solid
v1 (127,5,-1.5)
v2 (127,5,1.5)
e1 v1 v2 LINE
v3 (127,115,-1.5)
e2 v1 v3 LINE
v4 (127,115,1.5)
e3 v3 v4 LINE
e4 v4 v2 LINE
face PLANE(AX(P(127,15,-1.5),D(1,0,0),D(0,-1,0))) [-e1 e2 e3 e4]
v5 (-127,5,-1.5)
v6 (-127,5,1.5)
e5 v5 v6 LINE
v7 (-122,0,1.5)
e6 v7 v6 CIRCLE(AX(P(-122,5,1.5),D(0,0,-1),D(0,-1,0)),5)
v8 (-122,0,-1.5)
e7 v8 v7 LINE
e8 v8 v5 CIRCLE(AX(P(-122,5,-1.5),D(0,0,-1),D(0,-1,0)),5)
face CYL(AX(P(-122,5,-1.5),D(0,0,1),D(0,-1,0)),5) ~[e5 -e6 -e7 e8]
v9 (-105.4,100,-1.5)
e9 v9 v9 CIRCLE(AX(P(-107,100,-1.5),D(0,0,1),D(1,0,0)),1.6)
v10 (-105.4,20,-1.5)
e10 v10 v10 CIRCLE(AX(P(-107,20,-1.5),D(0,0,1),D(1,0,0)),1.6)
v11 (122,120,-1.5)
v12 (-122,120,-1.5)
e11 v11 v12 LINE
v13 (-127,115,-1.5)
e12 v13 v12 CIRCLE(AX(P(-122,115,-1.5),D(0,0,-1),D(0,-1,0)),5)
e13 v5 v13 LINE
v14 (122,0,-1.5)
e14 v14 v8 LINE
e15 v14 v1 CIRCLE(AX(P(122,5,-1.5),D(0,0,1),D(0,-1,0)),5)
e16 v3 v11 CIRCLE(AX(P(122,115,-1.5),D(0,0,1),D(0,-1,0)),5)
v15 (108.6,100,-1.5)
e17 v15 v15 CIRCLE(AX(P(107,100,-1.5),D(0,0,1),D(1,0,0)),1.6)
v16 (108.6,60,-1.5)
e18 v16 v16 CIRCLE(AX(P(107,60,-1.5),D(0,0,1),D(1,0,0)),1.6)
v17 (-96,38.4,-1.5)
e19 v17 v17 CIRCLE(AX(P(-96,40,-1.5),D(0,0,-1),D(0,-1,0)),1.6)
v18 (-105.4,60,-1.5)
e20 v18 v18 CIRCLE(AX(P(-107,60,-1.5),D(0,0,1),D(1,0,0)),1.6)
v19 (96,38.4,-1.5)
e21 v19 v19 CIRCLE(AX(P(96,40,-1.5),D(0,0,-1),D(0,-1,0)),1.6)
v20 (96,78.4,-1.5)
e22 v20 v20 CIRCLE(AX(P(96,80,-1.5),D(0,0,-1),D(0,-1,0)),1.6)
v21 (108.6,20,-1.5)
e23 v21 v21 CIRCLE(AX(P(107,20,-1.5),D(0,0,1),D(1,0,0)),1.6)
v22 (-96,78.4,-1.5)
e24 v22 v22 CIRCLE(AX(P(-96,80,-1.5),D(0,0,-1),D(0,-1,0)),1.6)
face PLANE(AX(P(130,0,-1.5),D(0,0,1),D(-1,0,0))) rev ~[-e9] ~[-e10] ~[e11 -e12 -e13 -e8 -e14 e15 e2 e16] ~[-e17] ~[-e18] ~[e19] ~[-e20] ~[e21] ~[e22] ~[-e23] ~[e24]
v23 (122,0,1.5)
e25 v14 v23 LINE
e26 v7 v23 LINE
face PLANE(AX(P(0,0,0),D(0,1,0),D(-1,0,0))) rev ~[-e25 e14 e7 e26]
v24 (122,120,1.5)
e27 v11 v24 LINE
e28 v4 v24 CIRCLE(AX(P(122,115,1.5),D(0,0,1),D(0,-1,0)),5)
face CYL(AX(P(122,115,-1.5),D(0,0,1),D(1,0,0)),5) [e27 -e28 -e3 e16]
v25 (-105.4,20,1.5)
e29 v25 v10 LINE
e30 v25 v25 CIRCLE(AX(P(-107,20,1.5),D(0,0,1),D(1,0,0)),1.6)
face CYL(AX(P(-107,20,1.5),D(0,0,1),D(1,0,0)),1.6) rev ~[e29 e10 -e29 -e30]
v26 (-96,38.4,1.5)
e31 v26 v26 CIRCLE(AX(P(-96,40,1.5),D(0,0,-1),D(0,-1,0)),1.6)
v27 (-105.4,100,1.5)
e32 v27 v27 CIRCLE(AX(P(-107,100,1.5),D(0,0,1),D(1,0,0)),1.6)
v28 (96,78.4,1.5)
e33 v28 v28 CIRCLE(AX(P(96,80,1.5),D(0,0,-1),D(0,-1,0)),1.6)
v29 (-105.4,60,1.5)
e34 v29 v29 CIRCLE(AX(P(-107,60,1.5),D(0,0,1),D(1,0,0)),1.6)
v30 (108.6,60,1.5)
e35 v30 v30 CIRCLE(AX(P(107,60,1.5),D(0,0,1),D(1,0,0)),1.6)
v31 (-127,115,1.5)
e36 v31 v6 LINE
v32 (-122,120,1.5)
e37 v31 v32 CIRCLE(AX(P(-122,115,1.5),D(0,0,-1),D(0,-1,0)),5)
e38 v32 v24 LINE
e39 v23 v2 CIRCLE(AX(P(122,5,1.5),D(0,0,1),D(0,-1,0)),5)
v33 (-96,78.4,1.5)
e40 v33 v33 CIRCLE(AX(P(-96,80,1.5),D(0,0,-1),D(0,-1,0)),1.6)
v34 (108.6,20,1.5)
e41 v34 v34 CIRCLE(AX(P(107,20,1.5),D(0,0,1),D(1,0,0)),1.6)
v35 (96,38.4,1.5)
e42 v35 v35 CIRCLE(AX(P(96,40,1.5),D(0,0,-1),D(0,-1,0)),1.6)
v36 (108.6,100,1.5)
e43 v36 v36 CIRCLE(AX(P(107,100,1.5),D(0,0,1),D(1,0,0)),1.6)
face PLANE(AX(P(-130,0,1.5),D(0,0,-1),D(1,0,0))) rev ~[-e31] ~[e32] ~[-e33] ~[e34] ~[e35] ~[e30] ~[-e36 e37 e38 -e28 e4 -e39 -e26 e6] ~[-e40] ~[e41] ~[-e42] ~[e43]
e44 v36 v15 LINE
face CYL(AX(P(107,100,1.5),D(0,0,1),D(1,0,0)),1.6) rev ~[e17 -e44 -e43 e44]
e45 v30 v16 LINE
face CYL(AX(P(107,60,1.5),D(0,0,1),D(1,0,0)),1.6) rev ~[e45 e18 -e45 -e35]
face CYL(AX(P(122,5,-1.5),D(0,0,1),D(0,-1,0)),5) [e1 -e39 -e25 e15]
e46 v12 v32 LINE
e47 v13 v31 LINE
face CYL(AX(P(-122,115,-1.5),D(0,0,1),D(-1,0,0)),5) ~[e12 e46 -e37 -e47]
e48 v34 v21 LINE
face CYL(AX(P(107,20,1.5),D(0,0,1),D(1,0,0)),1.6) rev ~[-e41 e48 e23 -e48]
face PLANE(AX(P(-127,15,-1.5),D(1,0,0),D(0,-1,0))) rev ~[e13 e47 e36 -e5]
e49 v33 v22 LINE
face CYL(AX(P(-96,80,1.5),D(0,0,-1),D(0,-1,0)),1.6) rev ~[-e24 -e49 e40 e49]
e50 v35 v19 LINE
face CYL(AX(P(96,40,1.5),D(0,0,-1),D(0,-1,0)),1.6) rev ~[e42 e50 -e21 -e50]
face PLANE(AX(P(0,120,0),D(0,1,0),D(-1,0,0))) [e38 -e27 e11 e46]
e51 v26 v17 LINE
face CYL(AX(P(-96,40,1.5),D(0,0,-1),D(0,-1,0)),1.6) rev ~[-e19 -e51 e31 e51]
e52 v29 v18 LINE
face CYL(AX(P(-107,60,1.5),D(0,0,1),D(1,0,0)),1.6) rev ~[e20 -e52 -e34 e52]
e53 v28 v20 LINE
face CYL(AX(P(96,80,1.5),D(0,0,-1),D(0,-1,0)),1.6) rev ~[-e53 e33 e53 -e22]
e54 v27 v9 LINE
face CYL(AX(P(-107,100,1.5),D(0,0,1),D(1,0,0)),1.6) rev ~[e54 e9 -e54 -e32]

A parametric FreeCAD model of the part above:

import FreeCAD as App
import Part
import Sketcher

V = App.Vector


def edges_at(feature, points):
    """Names of the edges that pass closest to the given points."""
    edges = feature.Shape.Edges
    near = lambda p: min(range(len(edges)), key=lambda i: edges[i].distToShape(Part.Vertex(*p))[0])
    return sorted({f"Edge{near(p) + 1}" for p in points})


def add_polygon(sketch, points):
    """Adds a closed chain of lines whose ends are joined by coincident constraints."""
    first, n = sketch.GeometryCount, len(points)
    for a, b in zip(points, points[1:] + points[:1]):
        sketch.addGeometry(Part.LineSegment(App.Vector(*a, 0), App.Vector(*b, 0)), False)
    for i in range(n):
        sketch.addConstraint(Sketcher.Constraint("Coincident", first + i, 2, first + (i + 1) % n, 1))

doc = App.newDocument("Part")
body = doc.addObject("PartDesign::Body", "Body")

# Sketch on XZ plane
sketch1 = doc.addObject("Sketcher::SketchObject", "Sketch")
body.addObject(sketch1)
sketch1.AttachmentSupport = (doc.XZ_Plane, [""])
sketch1.MapMode = "FlatFace"
add_polygon(sketch1, [(-130, -1.5), (-130, 1.5), (130, 1.5), (130, -1.5)])  # lines 0-3
sketch1.addConstraint(Sketcher.Constraint("Vertical", 0))
sketch1.addConstraint(Sketcher.Constraint("Horizontal", 1))
sketch1.addConstraint(Sketcher.Constraint("Vertical", 2))
sketch1.addConstraint(Sketcher.Constraint("Horizontal", 3))
sketch1.addConstraint(Sketcher.Constraint("Symmetric", 0, 2, 2, 2, -1, 1))
sketch1.addConstraint(Sketcher.Constraint("DistanceX", 1, 1, 1, 2, 260.0))
sketch1.addConstraint(Sketcher.Constraint("DistanceY", 0, 1, 0, 2, 3.0))
pad1 = doc.addObject("PartDesign::Pad", "Pad")
body.addObject(pad1)
pad1.Profile = sketch1
pad1.Length = 120
pad1.Reversed = True

# Sketch on XY plane
sketch2 = doc.addObject("Sketcher::SketchObject", "Sketch001")
body.addObject(sketch2)
sketch2.AttachmentSupport = (doc.XY_Plane, [""])
sketch2.MapMode = "FlatFace"
sketch2.AttachmentOffset = App.Placement(V(0, 0, -1.5), App.Rotation())
add_polygon(sketch2, [(130, 0), (127, 0), (127, 120), (130, 120)])  # lines 0-3
add_polygon(sketch2, [(-127, 0), (-130, 0), (-130, 120), (-127, 120)])  # lines 4-7
sketch2.addConstraint(Sketcher.Constraint("Horizontal", 0))
sketch2.addConstraint(Sketcher.Constraint("Vertical", 1))
sketch2.addConstraint(Sketcher.Constraint("Horizontal", 2))
sketch2.addConstraint(Sketcher.Constraint("Vertical", 3))
sketch2.addConstraint(Sketcher.Constraint("Horizontal", 4))
sketch2.addConstraint(Sketcher.Constraint("Vertical", 5))
sketch2.addConstraint(Sketcher.Constraint("Horizontal", 6))
sketch2.addConstraint(Sketcher.Constraint("Vertical", 7))
sketch2.addConstraint(Sketcher.Constraint("Symmetric", 3, 2, 4, 2, -1, 1))
sketch2.addConstraint(Sketcher.Constraint("Symmetric", 1, 2, 6, 2, -2))
sketch2.addConstraint(Sketcher.Constraint("PointOnObject", 0, 2, -1))
sketch2.addConstraint(Sketcher.Constraint("DistanceX", 0, 2, 0, 1, 3.0))
sketch2.addConstraint(Sketcher.Constraint("DistanceY", 1, 1, 1, 2, 120.0))
sketch2.addConstraint(Sketcher.Constraint("DistanceX", -1, 1, 0, 2, 127.0))
pocket1 = doc.addObject("PartDesign::Pocket", "Pocket")
body.addObject(pocket1)
pocket1.Profile = sketch2
pocket1.Type = "ThroughAll"
pocket1.Reversed = True

# Sketch on XY plane
sketch3 = doc.addObject("Sketcher::SketchObject", "Sketch002")
body.addObject(sketch3)
sketch3.AttachmentSupport = (doc.XY_Plane, [""])
sketch3.MapMode = "FlatFace"
sketch3.AttachmentOffset = App.Placement(V(0, 0, 1.5), App.Rotation())
sketch3.addGeometry(Part.Circle(V(-107, 100, 0), V(0, 0, 1), 1.6), False)
sketch3.addGeometry(Part.Circle(V(-107, 20, 0), V(0, 0, 1), 1.6), False)
sketch3.addGeometry(Part.Circle(V(107, 100, 0), V(0, 0, 1), 1.6), False)
sketch3.addGeometry(Part.Circle(V(107, 20, 0), V(0, 0, 1), 1.6), False)
sketch3.addGeometry(Part.Circle(V(-107, 60, 0), V(0, 0, 1), 1.6), False)
sketch3.addGeometry(Part.Circle(V(107, 60, 0), V(0, 0, 1), 1.6), False)
sketch3.addConstraint(Sketcher.Constraint("Equal", 0, 1))
sketch3.addConstraint(Sketcher.Constraint("Equal", 1, 2))
sketch3.addConstraint(Sketcher.Constraint("Equal", 2, 3))
sketch3.addConstraint(Sketcher.Constraint("Equal", 3, 4))
sketch3.addConstraint(Sketcher.Constraint("Equal", 4, 5))
sketch3.addConstraint(Sketcher.Constraint("Symmetric", 0, 3, 2, 3, -2))
sketch3.addConstraint(Sketcher.Constraint("Symmetric", 1, 3, 3, 3, -2))
sketch3.addConstraint(Sketcher.Constraint("Symmetric", 4, 3, 5, 3, -2))
sketch3.addConstraint(Sketcher.Constraint("Vertical", 0, 3, 1, 3))
sketch3.addConstraint(Sketcher.Constraint("Vertical", 1, 3, 4, 3))
sketch3.addConstraint(Sketcher.Constraint("Diameter", 0, 3.2))
sketch3.addConstraint(Sketcher.Constraint("DistanceY", -1, 1, 1, 3, 20.0))
sketch3.addConstraint(Sketcher.Constraint("DistanceY", 4, 3, 0, 3, 40.0))
sketch3.addConstraint(Sketcher.Constraint("DistanceY", 1, 3, 4, 3, 40.0))
sketch3.addConstraint(Sketcher.Constraint("DistanceX", 0, 3, -1, 1, 107.0))
pocket2 = doc.addObject("PartDesign::Pocket", "Pocket001")
body.addObject(pocket2)
pocket2.Profile = sketch3
pocket2.Type = "ThroughAll"
doc.recompute()

fillet = doc.addObject("PartDesign::Fillet", "Fillet")
body.addObject(fillet)
fillet.Base = (pocket2, edges_at(pocket2, [
    (-127, 120, 0),
    (-127, 0, 0),
    (127, 120, 0),
    (127, 0, 0),
]))
fillet.Radius = 5

# Sketch on XY plane
sketch4 = doc.addObject("Sketcher::SketchObject", "Sketch003")
body.addObject(sketch4)
sketch4.AttachmentSupport = (doc.XY_Plane, [""])
sketch4.MapMode = "FlatFace"
sketch4.AttachmentOffset = App.Placement(V(0, 0, 1.5), App.Rotation())
sketch4.addGeometry(Part.Circle(V(-96, 80, 0), V(0, 0, 1), 1.6), False)
sketch4.addGeometry(Part.Circle(V(-96, 40, 0), V(0, 0, 1), 1.6), False)
sketch4.addGeometry(Part.Circle(V(96, 40, 0), V(0, 0, 1), 1.6), False)
sketch4.addGeometry(Part.Circle(V(96, 80, 0), V(0, 0, 1), 1.6), False)
sketch4.addConstraint(Sketcher.Constraint("Equal", 0, 1))
sketch4.addConstraint(Sketcher.Constraint("Equal", 1, 2))
sketch4.addConstraint(Sketcher.Constraint("Equal", 2, 3))
sketch4.addConstraint(Sketcher.Constraint("Symmetric", 1, 3, 2, 3, -2))
sketch4.addConstraint(Sketcher.Constraint("Symmetric", 0, 3, 3, 3, -2))
sketch4.addConstraint(Sketcher.Constraint("Vertical", 0, 3, 1, 3))
sketch4.addConstraint(Sketcher.Constraint("Diameter", 0, 3.2))
sketch4.addConstraint(Sketcher.Constraint("DistanceX", 0, 3, -1, 1, 96.0))
sketch4.addConstraint(Sketcher.Constraint("DistanceY", -1, 1, 0, 3, 80.0))
sketch4.addConstraint(Sketcher.Constraint("DistanceY", -1, 1, 1, 3, 40.0))
doc.recompute()
hole = doc.addObject("PartDesign::Hole", "Hole")
body.addObject(hole)
hole.Profile = sketch4
hole.ThreadType = "None"
hole.Diameter = 3.2
hole.DepthType = "ThroughAll"

doc.recompute()
